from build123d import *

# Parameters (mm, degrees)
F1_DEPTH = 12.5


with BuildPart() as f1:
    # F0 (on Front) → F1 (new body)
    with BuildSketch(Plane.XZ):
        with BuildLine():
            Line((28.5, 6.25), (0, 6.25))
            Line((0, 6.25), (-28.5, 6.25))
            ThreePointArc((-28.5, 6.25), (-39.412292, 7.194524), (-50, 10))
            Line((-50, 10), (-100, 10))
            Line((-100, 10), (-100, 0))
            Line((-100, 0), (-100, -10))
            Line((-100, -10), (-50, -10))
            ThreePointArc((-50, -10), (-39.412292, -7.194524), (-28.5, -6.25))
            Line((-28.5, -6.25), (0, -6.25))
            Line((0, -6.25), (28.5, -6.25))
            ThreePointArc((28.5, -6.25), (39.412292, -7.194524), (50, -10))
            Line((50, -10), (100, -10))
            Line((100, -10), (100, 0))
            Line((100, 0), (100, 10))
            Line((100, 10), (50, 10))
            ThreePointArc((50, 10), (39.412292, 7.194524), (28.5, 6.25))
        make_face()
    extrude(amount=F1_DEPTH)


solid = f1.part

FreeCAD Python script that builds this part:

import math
import FreeCAD as App
import Part
import Sketcher
from FreeCAD import Vector

doc = App.newDocument("Part")
body = doc.addObject("PartDesign::Body", "Body")

# Sketch on XZ plane
sketch1 = doc.addObject("Sketcher::SketchObject", "Sketch")
body.addObject(sketch1)
sketch1.AttachmentSupport = (doc.XZ_Plane, [""])
sketch1.MapMode = "FlatFace"
sketch1.addGeometry([
    Part.LineSegment(Vector(28.5, 6.25, 0), Vector(-28.5, 6.25, 0)),  # 0
    Part.ArcOfCircle(Part.Circle(Vector(-28.499996, 69.758358, 0), Vector(0, 0, 1), 63.508358), math.radians(-109.787837), math.radians(-90.000004)),  # 1
    Part.LineSegment(Vector(-50, 10, 0), Vector(-100, 10, 0)),  # 2
    Part.LineSegment(Vector(-100, 10, 0), Vector(-100, -10, 0)),  # 3
    Part.LineSegment(Vector(-100, -10, 0), Vector(-50, -10, 0)),  # 4
    Part.ArcOfCircle(Part.Circle(Vector(-28.499996, -69.758358, 0), Vector(0, 0, 1), 63.508358), math.radians(90.000004), math.radians(109.787837)),  # 5
    Part.LineSegment(Vector(-28.5, -6.25, 0), Vector(28.5, -6.25, 0)),  # 6
    Part.ArcOfCircle(Part.Circle(Vector(28.499996, -69.758358, 0), Vector(0, 0, 1), 63.508358), math.radians(70.212163), math.radians(89.999996)),  # 7
    Part.LineSegment(Vector(50, -10, 0), Vector(100, -10, 0)),  # 8
    Part.LineSegment(Vector(100, -10, 0), Vector(100, 10, 0)),  # 9
    Part.LineSegment(Vector(100, 10, 0), Vector(50, 10, 0)),  # 10
    Part.ArcOfCircle(Part.Circle(Vector(28.499996, 69.758358, 0), Vector(0, 0, 1), 63.508358), math.radians(-89.999996), math.radians(-70.212163)),  # 11
], False)
sketch1.addConstraint([
    Sketcher.Constraint("Coincident", 0, 2, 1, 2),
    Sketcher.Constraint("Coincident", 1, 1, 2, 1),
    Sketcher.Constraint("Coincident", 2, 2, 3, 1),
    Sketcher.Constraint("Coincident", 3, 2, 4, 1),
    Sketcher.Constraint("Coincident", 4, 2, 5, 2),
    Sketcher.Constraint("Coincident", 5, 1, 6, 1),
    Sketcher.Constraint("Coincident", 6, 2, 7, 2),
    Sketcher.Constraint("Coincident", 7, 1, 8, 1),
    Sketcher.Constraint("Coincident", 8, 2, 9, 1),
    Sketcher.Constraint("Coincident", 9, 2, 10, 1),
    Sketcher.Constraint("Coincident", 10, 2, 11, 2),
    Sketcher.Constraint("Coincident", 11, 1, 0, 1),
    Sketcher.Constraint("Horizontal", 0),
    Sketcher.Constraint("Horizontal", 2),
    Sketcher.Constraint("Vertical", 3),
    Sketcher.Constraint("Horizontal", 4),
    Sketcher.Constraint("Horizontal", 6),
    Sketcher.Constraint("Horizontal", 8),
    Sketcher.Constraint("Vertical", 9),
    Sketcher.Constraint("Horizontal", 10),
    Sketcher.Constraint("DistanceX", 0, 2, 0, 1, 57.0),
    Sketcher.Constraint("DistanceX", 2, 2, 2, 1, 50.0),
    Sketcher.Constraint("DistanceX", 4, 1, 4, 2, 50.0),
    Sketcher.Constraint("DistanceX", 6, 1, 6, 2, 57.0),
    Sketcher.Constraint("DistanceX", 8, 1, 8, 2, 50.0),
    Sketcher.Constraint("DistanceX", 10, 2, 10, 1, 50.0),
    Sketcher.Constraint("DistanceY", 3, 2, 3, 1, 20.0),
    Sketcher.Constraint("DistanceY", 9, 1, 9, 2, 20.0),
    Sketcher.Constraint("DistanceX", 1, 1, -1, 1, 50.0),
    Sketcher.Constraint("DistanceY", -1, 1, 1, 1, 10.0),
    Sketcher.Constraint("DistanceX", -1, 1, 7, 1, 50.0),
    Sketcher.Constraint("DistanceY", 7, 1, -1, 1, 10.0),
    Sketcher.Constraint("DistanceX", 0, 2, 6, 2, 57.0),
    Sketcher.Constraint("DistanceX", 0, 2, -1, 1, 28.5),
    Sketcher.Constraint("DistanceY", 5, 1, 0, 2, 12.5),
    Sketcher.Constraint("DistanceY", -1, 1, 0, 2, 6.25),
    Sketcher.Constraint("Radius", 1, 63.508358),
    Sketcher.Constraint("Radius", 5, 63.508358),
    Sketcher.Constraint("Radius", 7, 63.508358),
    Sketcher.Constraint("Radius", 11, 63.508358),
])
pad1 = doc.addObject("PartDesign::Pad", "Pad")
body.addObject(pad1)
pad1.Profile = sketch1
pad1.Length = 12.5

doc.recompute()
